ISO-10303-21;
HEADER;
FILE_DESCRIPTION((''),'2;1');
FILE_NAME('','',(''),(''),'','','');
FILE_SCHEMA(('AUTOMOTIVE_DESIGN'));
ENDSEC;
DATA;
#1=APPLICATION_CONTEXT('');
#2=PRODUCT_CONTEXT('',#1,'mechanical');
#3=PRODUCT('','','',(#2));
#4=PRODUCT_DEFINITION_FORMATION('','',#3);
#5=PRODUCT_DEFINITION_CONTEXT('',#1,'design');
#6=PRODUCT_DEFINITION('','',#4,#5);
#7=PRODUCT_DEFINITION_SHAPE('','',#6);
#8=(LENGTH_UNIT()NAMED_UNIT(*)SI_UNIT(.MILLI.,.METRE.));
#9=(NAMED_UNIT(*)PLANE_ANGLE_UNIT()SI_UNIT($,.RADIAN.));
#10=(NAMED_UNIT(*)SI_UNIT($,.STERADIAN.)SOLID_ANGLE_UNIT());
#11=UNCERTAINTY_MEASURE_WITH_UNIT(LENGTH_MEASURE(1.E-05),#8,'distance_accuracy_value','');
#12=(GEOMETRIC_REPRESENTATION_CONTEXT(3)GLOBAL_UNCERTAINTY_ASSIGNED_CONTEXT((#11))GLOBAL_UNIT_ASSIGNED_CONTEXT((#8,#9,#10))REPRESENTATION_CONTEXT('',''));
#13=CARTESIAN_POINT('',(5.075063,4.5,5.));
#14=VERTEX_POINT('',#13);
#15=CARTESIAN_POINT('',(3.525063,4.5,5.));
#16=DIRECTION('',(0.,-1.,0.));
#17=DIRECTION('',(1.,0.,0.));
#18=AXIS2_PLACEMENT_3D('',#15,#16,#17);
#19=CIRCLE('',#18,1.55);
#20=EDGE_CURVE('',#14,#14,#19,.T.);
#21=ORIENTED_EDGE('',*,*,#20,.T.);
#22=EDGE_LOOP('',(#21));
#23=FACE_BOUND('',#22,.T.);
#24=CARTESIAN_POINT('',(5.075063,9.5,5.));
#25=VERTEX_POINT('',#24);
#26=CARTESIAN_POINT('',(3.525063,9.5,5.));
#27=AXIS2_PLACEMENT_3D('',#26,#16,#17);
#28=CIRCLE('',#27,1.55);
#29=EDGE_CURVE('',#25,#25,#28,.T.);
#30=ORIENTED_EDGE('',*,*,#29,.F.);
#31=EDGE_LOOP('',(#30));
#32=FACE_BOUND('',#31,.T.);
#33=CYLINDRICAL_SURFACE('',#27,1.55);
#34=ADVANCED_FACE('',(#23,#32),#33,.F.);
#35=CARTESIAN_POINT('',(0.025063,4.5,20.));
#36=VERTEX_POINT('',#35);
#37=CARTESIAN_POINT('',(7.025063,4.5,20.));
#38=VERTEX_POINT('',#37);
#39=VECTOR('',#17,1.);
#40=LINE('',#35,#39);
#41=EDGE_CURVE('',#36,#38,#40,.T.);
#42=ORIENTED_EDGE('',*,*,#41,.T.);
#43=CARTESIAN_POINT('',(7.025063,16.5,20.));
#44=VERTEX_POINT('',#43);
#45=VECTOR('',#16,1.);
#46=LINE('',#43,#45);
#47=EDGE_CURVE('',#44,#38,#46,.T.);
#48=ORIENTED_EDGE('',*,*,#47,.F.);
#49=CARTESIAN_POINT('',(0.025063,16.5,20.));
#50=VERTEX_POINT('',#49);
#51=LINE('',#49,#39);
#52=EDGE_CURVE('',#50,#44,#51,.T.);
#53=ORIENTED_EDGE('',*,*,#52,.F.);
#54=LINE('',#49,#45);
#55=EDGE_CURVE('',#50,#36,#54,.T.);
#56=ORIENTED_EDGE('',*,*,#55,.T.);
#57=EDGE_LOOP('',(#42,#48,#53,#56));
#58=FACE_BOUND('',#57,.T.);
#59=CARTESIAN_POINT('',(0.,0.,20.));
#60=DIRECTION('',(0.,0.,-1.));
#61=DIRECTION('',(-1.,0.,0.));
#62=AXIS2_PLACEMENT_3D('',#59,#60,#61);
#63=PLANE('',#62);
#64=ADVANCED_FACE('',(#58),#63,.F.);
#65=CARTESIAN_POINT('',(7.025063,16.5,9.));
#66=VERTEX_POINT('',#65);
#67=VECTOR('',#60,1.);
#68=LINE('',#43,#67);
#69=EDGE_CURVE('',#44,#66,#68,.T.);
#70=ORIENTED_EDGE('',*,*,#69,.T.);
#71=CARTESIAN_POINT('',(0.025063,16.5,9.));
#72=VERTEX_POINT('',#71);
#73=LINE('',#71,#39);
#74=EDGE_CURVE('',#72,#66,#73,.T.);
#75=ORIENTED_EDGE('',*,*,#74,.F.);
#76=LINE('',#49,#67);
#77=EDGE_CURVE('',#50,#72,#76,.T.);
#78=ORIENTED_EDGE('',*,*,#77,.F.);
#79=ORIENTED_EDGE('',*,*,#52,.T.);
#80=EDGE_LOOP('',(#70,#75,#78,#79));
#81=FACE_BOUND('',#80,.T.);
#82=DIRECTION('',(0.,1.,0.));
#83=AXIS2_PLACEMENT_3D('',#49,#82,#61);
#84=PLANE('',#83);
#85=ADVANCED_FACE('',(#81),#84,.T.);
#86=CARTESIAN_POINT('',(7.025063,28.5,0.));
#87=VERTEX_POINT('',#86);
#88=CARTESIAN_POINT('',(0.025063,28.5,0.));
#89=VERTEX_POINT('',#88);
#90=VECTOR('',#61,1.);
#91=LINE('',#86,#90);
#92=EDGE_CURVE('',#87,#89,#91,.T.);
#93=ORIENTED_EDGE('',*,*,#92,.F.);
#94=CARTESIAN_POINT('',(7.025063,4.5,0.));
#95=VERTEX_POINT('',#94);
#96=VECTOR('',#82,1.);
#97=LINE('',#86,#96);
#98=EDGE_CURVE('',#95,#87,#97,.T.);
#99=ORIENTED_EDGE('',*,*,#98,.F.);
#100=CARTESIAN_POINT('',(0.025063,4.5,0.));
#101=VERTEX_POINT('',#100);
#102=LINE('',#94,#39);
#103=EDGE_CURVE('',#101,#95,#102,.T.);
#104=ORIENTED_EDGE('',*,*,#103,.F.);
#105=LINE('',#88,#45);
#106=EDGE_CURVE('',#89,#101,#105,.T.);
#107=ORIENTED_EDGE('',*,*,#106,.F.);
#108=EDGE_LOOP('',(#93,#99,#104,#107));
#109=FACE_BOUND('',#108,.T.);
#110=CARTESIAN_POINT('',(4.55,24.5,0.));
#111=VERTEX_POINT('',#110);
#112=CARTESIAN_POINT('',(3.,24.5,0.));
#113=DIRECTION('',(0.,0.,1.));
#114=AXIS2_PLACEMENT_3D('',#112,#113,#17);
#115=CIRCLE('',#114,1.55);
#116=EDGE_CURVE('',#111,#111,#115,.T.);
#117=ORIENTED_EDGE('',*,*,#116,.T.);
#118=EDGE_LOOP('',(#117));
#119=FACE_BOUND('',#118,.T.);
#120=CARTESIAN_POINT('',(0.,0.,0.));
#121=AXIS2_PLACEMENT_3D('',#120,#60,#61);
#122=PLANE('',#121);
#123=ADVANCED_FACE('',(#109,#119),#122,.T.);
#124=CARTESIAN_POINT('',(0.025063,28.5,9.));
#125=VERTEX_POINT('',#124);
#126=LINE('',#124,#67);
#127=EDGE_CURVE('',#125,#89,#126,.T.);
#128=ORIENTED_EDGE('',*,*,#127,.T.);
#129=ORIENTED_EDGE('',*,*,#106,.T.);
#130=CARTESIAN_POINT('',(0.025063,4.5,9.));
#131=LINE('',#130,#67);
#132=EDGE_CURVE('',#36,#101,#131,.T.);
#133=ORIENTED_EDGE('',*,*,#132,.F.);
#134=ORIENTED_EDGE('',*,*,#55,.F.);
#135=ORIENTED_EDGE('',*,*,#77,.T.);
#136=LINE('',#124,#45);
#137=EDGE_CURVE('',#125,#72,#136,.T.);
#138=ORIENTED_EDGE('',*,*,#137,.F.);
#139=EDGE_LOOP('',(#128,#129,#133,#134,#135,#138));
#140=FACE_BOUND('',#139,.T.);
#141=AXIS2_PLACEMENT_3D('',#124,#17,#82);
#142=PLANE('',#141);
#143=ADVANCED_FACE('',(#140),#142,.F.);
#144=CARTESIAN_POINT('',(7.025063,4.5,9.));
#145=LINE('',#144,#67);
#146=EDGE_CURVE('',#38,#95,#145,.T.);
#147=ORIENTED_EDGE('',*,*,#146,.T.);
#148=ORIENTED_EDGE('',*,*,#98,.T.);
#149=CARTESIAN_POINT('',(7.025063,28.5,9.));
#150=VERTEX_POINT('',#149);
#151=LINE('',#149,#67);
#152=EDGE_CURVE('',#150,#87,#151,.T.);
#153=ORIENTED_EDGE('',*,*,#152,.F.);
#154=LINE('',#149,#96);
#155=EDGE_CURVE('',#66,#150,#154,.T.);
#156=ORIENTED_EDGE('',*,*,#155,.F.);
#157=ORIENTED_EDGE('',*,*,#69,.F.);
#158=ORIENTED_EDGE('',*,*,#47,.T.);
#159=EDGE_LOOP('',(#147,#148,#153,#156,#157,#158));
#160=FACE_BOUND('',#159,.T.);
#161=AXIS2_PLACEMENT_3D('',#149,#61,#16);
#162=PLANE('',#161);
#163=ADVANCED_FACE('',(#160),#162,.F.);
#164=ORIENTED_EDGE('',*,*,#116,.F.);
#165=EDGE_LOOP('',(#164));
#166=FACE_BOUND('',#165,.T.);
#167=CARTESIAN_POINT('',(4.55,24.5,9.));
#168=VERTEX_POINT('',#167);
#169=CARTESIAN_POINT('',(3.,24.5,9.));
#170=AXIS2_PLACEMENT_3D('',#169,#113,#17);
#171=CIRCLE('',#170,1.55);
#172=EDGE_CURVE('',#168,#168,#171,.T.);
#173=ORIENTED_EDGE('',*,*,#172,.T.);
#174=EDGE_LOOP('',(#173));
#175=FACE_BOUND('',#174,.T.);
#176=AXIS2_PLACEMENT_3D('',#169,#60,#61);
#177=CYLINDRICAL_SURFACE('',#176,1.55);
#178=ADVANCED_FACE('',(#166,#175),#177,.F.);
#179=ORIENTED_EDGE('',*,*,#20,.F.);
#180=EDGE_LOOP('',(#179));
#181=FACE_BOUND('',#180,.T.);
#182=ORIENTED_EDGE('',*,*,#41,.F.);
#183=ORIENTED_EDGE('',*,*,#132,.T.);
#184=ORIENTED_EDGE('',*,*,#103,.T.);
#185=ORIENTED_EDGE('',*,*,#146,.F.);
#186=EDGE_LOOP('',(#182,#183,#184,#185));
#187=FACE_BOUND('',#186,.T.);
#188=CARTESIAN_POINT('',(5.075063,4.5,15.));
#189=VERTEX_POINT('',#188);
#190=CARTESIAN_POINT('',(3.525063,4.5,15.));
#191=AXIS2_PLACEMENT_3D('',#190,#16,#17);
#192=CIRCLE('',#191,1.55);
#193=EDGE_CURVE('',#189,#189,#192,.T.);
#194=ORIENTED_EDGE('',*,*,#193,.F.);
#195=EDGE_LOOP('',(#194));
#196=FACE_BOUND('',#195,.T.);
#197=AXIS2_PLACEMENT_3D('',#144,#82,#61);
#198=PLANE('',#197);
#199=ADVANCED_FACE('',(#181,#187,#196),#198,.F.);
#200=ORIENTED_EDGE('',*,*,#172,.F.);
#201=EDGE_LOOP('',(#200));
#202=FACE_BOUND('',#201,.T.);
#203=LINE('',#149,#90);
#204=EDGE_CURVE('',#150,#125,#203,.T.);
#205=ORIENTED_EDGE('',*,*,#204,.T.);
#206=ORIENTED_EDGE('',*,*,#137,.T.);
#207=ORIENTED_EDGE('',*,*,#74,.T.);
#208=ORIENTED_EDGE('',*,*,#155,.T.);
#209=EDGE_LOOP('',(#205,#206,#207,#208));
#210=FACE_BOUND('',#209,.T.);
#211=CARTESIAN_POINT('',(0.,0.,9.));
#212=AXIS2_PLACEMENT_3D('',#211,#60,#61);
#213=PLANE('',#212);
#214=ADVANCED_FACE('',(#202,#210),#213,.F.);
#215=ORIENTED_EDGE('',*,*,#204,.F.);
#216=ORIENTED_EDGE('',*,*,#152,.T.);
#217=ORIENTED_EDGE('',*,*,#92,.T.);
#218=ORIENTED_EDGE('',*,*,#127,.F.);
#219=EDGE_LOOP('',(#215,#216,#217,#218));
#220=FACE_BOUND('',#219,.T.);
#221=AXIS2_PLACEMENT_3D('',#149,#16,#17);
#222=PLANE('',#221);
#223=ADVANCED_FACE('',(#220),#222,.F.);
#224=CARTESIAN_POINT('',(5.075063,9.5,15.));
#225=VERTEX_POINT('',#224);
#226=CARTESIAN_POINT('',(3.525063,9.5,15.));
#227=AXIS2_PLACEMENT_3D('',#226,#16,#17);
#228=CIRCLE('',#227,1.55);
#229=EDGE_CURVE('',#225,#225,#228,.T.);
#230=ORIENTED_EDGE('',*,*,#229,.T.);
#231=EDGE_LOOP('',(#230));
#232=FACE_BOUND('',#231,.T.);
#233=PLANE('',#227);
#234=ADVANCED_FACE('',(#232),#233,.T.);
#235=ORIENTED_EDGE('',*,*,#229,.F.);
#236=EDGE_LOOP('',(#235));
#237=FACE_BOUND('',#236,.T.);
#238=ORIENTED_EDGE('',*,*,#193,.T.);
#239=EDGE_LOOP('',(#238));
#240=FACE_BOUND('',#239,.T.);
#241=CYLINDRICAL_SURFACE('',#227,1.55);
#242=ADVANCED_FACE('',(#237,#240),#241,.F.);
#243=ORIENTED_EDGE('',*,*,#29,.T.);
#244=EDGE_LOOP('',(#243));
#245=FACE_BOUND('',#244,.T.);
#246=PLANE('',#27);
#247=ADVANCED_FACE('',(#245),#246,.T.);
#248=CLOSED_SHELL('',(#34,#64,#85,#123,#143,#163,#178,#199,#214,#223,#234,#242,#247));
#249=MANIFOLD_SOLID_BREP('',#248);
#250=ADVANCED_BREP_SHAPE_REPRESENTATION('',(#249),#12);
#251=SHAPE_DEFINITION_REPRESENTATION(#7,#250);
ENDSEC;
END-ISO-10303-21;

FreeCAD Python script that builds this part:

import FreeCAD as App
import Part
import Sketcher
Q = App.Units.Quantity


def add_polygon(sketch, points):
    """Adds a closed chain of lines whose ends are joined by coincident constraints."""
    first, n = sketch.GeometryCount, len(points)
    for a, b in zip(points, points[1:] + points[:1]):
        sketch.addGeometry(Part.LineSegment(App.Vector(*a, 0), App.Vector(*b, 0)), False)
    for i in range(n):
        sketch.addConstraint(Sketcher.Constraint("Coincident", first + i, 2, first + (i + 1) % n, 1))

doc = App.newDocument("Part")
body = doc.addObject("PartDesign::Body", "Body")

sketch1 = body.newObject("Sketcher::SketchObject", "Sketch")
sketch1.AttachmentSupport = (doc.getObject("XY_Plane"), [""])
sketch1.MapMode = "FlatFace"
add_polygon(sketch1, [(0, 28.5), (0, 4.5), (7, 4.5), (7, 28.5)])
sketch1.addGeometry(Part.Circle(App.Vector(3, 24.5, 0), App.Vector(0, 0, 1), 1.6), False)
sketch1.addConstraint([
    Sketcher.Constraint("Vertical", 0),
    Sketcher.Constraint("Horizontal", 1),
    Sketcher.Constraint("Vertical", 2),
    Sketcher.Constraint("Horizontal", 3),
    Sketcher.Constraint("Diameter", 4, Q("3.1 mm")),
    Sketcher.Constraint("DistanceX", 1, 1, 1, 2, Q("7 mm")),
    Sketcher.Constraint("DistanceY", 0, 2, 0, 1, Q("24 mm")),
    Sketcher.Constraint("DistanceX", -1, 1, 4, 3, Q("3 mm")),
    Sketcher.Constraint("DistanceY", 0, 2, 4, 3, Q("20 mm")),
    Sketcher.Constraint("DistanceY", -1, 1, 4, 3, Q("24.5 mm")),
    Sketcher.Constraint("DistanceX", -1, 1, 0, 2, Q("0.025063 mm")),
])
pad1 = body.newObject("PartDesign::Pad", "Pad")
pad1.Profile = sketch1
pad1.Length = 9

sketch2 = body.newObject("Sketcher::SketchObject", "Sketch001")
sketch2.AttachmentSupport = (doc.getObject("XY_Plane"), [""])
sketch2.MapMode = "FlatFace"
sketch2.AttachmentOffset = App.Placement(App.Vector(0, 0, 9), App.Rotation())
add_polygon(sketch2, [(0, 16), (0, 4), (7, 4), (7, 16)])
sketch2.addConstraint([
    Sketcher.Constraint("Vertical", 0),
    Sketcher.Constraint("Horizontal", 1),
    Sketcher.Constraint("Vertical", 2),
    Sketcher.Constraint("Horizontal", 3),
    Sketcher.Constraint("DistanceX", 1, 1, 1, 2, Q("7 mm")),
    Sketcher.Constraint("DistanceY", 0, 2, 0, 1, Q("12 mm")),
    Sketcher.Constraint("DistanceY", -1, 1, 0, 2, Q("4.5 mm")),
    Sketcher.Constraint("DistanceX", -1, 1, 0, 2, Q("0.025063 mm")),
])
pad2 = body.newObject("PartDesign::Pad", "Pad001")
pad2.Profile = sketch2
pad2.Length = 11

sketch3 = body.newObject("Sketcher::SketchObject", "Sketch002")
sketch3.AttachmentSupport = (doc.getObject("XZ_Plane"), [""])
sketch3.MapMode = "FlatFace"
sketch3.AttachmentOffset = App.Placement(App.Vector(0, 0, -4.5), App.Rotation())
sketch3.addGeometry([
    Part.Circle(App.Vector(3.5, 5, 0), App.Vector(0, 0, 1), 1.6),
    Part.Circle(App.Vector(3.5, 15, 0), App.Vector(0, 0, 1), 1.6),
], False)
sketch3.addConstraint([
    Sketcher.Constraint("Equal", 0, 1),
    Sketcher.Constraint("Vertical", 0, 3, 1, 3),
    Sketcher.Constraint("Diameter", 0, Q("3.1 mm")),
    Sketcher.Constraint("DistanceY", -1, 1, 0, 3, Q("5 mm")),
    Sketcher.Constraint("DistanceY", -1, 1, 1, 3, Q("15 mm")),
    Sketcher.Constraint("DistanceX", -1, 1, 0, 3, Q("3.525063 mm")),
])
pocket1 = body.newObject("PartDesign::Pocket", "Pocket")
pocket1.Profile = sketch3
pocket1.Length = 5

doc.recompute()
